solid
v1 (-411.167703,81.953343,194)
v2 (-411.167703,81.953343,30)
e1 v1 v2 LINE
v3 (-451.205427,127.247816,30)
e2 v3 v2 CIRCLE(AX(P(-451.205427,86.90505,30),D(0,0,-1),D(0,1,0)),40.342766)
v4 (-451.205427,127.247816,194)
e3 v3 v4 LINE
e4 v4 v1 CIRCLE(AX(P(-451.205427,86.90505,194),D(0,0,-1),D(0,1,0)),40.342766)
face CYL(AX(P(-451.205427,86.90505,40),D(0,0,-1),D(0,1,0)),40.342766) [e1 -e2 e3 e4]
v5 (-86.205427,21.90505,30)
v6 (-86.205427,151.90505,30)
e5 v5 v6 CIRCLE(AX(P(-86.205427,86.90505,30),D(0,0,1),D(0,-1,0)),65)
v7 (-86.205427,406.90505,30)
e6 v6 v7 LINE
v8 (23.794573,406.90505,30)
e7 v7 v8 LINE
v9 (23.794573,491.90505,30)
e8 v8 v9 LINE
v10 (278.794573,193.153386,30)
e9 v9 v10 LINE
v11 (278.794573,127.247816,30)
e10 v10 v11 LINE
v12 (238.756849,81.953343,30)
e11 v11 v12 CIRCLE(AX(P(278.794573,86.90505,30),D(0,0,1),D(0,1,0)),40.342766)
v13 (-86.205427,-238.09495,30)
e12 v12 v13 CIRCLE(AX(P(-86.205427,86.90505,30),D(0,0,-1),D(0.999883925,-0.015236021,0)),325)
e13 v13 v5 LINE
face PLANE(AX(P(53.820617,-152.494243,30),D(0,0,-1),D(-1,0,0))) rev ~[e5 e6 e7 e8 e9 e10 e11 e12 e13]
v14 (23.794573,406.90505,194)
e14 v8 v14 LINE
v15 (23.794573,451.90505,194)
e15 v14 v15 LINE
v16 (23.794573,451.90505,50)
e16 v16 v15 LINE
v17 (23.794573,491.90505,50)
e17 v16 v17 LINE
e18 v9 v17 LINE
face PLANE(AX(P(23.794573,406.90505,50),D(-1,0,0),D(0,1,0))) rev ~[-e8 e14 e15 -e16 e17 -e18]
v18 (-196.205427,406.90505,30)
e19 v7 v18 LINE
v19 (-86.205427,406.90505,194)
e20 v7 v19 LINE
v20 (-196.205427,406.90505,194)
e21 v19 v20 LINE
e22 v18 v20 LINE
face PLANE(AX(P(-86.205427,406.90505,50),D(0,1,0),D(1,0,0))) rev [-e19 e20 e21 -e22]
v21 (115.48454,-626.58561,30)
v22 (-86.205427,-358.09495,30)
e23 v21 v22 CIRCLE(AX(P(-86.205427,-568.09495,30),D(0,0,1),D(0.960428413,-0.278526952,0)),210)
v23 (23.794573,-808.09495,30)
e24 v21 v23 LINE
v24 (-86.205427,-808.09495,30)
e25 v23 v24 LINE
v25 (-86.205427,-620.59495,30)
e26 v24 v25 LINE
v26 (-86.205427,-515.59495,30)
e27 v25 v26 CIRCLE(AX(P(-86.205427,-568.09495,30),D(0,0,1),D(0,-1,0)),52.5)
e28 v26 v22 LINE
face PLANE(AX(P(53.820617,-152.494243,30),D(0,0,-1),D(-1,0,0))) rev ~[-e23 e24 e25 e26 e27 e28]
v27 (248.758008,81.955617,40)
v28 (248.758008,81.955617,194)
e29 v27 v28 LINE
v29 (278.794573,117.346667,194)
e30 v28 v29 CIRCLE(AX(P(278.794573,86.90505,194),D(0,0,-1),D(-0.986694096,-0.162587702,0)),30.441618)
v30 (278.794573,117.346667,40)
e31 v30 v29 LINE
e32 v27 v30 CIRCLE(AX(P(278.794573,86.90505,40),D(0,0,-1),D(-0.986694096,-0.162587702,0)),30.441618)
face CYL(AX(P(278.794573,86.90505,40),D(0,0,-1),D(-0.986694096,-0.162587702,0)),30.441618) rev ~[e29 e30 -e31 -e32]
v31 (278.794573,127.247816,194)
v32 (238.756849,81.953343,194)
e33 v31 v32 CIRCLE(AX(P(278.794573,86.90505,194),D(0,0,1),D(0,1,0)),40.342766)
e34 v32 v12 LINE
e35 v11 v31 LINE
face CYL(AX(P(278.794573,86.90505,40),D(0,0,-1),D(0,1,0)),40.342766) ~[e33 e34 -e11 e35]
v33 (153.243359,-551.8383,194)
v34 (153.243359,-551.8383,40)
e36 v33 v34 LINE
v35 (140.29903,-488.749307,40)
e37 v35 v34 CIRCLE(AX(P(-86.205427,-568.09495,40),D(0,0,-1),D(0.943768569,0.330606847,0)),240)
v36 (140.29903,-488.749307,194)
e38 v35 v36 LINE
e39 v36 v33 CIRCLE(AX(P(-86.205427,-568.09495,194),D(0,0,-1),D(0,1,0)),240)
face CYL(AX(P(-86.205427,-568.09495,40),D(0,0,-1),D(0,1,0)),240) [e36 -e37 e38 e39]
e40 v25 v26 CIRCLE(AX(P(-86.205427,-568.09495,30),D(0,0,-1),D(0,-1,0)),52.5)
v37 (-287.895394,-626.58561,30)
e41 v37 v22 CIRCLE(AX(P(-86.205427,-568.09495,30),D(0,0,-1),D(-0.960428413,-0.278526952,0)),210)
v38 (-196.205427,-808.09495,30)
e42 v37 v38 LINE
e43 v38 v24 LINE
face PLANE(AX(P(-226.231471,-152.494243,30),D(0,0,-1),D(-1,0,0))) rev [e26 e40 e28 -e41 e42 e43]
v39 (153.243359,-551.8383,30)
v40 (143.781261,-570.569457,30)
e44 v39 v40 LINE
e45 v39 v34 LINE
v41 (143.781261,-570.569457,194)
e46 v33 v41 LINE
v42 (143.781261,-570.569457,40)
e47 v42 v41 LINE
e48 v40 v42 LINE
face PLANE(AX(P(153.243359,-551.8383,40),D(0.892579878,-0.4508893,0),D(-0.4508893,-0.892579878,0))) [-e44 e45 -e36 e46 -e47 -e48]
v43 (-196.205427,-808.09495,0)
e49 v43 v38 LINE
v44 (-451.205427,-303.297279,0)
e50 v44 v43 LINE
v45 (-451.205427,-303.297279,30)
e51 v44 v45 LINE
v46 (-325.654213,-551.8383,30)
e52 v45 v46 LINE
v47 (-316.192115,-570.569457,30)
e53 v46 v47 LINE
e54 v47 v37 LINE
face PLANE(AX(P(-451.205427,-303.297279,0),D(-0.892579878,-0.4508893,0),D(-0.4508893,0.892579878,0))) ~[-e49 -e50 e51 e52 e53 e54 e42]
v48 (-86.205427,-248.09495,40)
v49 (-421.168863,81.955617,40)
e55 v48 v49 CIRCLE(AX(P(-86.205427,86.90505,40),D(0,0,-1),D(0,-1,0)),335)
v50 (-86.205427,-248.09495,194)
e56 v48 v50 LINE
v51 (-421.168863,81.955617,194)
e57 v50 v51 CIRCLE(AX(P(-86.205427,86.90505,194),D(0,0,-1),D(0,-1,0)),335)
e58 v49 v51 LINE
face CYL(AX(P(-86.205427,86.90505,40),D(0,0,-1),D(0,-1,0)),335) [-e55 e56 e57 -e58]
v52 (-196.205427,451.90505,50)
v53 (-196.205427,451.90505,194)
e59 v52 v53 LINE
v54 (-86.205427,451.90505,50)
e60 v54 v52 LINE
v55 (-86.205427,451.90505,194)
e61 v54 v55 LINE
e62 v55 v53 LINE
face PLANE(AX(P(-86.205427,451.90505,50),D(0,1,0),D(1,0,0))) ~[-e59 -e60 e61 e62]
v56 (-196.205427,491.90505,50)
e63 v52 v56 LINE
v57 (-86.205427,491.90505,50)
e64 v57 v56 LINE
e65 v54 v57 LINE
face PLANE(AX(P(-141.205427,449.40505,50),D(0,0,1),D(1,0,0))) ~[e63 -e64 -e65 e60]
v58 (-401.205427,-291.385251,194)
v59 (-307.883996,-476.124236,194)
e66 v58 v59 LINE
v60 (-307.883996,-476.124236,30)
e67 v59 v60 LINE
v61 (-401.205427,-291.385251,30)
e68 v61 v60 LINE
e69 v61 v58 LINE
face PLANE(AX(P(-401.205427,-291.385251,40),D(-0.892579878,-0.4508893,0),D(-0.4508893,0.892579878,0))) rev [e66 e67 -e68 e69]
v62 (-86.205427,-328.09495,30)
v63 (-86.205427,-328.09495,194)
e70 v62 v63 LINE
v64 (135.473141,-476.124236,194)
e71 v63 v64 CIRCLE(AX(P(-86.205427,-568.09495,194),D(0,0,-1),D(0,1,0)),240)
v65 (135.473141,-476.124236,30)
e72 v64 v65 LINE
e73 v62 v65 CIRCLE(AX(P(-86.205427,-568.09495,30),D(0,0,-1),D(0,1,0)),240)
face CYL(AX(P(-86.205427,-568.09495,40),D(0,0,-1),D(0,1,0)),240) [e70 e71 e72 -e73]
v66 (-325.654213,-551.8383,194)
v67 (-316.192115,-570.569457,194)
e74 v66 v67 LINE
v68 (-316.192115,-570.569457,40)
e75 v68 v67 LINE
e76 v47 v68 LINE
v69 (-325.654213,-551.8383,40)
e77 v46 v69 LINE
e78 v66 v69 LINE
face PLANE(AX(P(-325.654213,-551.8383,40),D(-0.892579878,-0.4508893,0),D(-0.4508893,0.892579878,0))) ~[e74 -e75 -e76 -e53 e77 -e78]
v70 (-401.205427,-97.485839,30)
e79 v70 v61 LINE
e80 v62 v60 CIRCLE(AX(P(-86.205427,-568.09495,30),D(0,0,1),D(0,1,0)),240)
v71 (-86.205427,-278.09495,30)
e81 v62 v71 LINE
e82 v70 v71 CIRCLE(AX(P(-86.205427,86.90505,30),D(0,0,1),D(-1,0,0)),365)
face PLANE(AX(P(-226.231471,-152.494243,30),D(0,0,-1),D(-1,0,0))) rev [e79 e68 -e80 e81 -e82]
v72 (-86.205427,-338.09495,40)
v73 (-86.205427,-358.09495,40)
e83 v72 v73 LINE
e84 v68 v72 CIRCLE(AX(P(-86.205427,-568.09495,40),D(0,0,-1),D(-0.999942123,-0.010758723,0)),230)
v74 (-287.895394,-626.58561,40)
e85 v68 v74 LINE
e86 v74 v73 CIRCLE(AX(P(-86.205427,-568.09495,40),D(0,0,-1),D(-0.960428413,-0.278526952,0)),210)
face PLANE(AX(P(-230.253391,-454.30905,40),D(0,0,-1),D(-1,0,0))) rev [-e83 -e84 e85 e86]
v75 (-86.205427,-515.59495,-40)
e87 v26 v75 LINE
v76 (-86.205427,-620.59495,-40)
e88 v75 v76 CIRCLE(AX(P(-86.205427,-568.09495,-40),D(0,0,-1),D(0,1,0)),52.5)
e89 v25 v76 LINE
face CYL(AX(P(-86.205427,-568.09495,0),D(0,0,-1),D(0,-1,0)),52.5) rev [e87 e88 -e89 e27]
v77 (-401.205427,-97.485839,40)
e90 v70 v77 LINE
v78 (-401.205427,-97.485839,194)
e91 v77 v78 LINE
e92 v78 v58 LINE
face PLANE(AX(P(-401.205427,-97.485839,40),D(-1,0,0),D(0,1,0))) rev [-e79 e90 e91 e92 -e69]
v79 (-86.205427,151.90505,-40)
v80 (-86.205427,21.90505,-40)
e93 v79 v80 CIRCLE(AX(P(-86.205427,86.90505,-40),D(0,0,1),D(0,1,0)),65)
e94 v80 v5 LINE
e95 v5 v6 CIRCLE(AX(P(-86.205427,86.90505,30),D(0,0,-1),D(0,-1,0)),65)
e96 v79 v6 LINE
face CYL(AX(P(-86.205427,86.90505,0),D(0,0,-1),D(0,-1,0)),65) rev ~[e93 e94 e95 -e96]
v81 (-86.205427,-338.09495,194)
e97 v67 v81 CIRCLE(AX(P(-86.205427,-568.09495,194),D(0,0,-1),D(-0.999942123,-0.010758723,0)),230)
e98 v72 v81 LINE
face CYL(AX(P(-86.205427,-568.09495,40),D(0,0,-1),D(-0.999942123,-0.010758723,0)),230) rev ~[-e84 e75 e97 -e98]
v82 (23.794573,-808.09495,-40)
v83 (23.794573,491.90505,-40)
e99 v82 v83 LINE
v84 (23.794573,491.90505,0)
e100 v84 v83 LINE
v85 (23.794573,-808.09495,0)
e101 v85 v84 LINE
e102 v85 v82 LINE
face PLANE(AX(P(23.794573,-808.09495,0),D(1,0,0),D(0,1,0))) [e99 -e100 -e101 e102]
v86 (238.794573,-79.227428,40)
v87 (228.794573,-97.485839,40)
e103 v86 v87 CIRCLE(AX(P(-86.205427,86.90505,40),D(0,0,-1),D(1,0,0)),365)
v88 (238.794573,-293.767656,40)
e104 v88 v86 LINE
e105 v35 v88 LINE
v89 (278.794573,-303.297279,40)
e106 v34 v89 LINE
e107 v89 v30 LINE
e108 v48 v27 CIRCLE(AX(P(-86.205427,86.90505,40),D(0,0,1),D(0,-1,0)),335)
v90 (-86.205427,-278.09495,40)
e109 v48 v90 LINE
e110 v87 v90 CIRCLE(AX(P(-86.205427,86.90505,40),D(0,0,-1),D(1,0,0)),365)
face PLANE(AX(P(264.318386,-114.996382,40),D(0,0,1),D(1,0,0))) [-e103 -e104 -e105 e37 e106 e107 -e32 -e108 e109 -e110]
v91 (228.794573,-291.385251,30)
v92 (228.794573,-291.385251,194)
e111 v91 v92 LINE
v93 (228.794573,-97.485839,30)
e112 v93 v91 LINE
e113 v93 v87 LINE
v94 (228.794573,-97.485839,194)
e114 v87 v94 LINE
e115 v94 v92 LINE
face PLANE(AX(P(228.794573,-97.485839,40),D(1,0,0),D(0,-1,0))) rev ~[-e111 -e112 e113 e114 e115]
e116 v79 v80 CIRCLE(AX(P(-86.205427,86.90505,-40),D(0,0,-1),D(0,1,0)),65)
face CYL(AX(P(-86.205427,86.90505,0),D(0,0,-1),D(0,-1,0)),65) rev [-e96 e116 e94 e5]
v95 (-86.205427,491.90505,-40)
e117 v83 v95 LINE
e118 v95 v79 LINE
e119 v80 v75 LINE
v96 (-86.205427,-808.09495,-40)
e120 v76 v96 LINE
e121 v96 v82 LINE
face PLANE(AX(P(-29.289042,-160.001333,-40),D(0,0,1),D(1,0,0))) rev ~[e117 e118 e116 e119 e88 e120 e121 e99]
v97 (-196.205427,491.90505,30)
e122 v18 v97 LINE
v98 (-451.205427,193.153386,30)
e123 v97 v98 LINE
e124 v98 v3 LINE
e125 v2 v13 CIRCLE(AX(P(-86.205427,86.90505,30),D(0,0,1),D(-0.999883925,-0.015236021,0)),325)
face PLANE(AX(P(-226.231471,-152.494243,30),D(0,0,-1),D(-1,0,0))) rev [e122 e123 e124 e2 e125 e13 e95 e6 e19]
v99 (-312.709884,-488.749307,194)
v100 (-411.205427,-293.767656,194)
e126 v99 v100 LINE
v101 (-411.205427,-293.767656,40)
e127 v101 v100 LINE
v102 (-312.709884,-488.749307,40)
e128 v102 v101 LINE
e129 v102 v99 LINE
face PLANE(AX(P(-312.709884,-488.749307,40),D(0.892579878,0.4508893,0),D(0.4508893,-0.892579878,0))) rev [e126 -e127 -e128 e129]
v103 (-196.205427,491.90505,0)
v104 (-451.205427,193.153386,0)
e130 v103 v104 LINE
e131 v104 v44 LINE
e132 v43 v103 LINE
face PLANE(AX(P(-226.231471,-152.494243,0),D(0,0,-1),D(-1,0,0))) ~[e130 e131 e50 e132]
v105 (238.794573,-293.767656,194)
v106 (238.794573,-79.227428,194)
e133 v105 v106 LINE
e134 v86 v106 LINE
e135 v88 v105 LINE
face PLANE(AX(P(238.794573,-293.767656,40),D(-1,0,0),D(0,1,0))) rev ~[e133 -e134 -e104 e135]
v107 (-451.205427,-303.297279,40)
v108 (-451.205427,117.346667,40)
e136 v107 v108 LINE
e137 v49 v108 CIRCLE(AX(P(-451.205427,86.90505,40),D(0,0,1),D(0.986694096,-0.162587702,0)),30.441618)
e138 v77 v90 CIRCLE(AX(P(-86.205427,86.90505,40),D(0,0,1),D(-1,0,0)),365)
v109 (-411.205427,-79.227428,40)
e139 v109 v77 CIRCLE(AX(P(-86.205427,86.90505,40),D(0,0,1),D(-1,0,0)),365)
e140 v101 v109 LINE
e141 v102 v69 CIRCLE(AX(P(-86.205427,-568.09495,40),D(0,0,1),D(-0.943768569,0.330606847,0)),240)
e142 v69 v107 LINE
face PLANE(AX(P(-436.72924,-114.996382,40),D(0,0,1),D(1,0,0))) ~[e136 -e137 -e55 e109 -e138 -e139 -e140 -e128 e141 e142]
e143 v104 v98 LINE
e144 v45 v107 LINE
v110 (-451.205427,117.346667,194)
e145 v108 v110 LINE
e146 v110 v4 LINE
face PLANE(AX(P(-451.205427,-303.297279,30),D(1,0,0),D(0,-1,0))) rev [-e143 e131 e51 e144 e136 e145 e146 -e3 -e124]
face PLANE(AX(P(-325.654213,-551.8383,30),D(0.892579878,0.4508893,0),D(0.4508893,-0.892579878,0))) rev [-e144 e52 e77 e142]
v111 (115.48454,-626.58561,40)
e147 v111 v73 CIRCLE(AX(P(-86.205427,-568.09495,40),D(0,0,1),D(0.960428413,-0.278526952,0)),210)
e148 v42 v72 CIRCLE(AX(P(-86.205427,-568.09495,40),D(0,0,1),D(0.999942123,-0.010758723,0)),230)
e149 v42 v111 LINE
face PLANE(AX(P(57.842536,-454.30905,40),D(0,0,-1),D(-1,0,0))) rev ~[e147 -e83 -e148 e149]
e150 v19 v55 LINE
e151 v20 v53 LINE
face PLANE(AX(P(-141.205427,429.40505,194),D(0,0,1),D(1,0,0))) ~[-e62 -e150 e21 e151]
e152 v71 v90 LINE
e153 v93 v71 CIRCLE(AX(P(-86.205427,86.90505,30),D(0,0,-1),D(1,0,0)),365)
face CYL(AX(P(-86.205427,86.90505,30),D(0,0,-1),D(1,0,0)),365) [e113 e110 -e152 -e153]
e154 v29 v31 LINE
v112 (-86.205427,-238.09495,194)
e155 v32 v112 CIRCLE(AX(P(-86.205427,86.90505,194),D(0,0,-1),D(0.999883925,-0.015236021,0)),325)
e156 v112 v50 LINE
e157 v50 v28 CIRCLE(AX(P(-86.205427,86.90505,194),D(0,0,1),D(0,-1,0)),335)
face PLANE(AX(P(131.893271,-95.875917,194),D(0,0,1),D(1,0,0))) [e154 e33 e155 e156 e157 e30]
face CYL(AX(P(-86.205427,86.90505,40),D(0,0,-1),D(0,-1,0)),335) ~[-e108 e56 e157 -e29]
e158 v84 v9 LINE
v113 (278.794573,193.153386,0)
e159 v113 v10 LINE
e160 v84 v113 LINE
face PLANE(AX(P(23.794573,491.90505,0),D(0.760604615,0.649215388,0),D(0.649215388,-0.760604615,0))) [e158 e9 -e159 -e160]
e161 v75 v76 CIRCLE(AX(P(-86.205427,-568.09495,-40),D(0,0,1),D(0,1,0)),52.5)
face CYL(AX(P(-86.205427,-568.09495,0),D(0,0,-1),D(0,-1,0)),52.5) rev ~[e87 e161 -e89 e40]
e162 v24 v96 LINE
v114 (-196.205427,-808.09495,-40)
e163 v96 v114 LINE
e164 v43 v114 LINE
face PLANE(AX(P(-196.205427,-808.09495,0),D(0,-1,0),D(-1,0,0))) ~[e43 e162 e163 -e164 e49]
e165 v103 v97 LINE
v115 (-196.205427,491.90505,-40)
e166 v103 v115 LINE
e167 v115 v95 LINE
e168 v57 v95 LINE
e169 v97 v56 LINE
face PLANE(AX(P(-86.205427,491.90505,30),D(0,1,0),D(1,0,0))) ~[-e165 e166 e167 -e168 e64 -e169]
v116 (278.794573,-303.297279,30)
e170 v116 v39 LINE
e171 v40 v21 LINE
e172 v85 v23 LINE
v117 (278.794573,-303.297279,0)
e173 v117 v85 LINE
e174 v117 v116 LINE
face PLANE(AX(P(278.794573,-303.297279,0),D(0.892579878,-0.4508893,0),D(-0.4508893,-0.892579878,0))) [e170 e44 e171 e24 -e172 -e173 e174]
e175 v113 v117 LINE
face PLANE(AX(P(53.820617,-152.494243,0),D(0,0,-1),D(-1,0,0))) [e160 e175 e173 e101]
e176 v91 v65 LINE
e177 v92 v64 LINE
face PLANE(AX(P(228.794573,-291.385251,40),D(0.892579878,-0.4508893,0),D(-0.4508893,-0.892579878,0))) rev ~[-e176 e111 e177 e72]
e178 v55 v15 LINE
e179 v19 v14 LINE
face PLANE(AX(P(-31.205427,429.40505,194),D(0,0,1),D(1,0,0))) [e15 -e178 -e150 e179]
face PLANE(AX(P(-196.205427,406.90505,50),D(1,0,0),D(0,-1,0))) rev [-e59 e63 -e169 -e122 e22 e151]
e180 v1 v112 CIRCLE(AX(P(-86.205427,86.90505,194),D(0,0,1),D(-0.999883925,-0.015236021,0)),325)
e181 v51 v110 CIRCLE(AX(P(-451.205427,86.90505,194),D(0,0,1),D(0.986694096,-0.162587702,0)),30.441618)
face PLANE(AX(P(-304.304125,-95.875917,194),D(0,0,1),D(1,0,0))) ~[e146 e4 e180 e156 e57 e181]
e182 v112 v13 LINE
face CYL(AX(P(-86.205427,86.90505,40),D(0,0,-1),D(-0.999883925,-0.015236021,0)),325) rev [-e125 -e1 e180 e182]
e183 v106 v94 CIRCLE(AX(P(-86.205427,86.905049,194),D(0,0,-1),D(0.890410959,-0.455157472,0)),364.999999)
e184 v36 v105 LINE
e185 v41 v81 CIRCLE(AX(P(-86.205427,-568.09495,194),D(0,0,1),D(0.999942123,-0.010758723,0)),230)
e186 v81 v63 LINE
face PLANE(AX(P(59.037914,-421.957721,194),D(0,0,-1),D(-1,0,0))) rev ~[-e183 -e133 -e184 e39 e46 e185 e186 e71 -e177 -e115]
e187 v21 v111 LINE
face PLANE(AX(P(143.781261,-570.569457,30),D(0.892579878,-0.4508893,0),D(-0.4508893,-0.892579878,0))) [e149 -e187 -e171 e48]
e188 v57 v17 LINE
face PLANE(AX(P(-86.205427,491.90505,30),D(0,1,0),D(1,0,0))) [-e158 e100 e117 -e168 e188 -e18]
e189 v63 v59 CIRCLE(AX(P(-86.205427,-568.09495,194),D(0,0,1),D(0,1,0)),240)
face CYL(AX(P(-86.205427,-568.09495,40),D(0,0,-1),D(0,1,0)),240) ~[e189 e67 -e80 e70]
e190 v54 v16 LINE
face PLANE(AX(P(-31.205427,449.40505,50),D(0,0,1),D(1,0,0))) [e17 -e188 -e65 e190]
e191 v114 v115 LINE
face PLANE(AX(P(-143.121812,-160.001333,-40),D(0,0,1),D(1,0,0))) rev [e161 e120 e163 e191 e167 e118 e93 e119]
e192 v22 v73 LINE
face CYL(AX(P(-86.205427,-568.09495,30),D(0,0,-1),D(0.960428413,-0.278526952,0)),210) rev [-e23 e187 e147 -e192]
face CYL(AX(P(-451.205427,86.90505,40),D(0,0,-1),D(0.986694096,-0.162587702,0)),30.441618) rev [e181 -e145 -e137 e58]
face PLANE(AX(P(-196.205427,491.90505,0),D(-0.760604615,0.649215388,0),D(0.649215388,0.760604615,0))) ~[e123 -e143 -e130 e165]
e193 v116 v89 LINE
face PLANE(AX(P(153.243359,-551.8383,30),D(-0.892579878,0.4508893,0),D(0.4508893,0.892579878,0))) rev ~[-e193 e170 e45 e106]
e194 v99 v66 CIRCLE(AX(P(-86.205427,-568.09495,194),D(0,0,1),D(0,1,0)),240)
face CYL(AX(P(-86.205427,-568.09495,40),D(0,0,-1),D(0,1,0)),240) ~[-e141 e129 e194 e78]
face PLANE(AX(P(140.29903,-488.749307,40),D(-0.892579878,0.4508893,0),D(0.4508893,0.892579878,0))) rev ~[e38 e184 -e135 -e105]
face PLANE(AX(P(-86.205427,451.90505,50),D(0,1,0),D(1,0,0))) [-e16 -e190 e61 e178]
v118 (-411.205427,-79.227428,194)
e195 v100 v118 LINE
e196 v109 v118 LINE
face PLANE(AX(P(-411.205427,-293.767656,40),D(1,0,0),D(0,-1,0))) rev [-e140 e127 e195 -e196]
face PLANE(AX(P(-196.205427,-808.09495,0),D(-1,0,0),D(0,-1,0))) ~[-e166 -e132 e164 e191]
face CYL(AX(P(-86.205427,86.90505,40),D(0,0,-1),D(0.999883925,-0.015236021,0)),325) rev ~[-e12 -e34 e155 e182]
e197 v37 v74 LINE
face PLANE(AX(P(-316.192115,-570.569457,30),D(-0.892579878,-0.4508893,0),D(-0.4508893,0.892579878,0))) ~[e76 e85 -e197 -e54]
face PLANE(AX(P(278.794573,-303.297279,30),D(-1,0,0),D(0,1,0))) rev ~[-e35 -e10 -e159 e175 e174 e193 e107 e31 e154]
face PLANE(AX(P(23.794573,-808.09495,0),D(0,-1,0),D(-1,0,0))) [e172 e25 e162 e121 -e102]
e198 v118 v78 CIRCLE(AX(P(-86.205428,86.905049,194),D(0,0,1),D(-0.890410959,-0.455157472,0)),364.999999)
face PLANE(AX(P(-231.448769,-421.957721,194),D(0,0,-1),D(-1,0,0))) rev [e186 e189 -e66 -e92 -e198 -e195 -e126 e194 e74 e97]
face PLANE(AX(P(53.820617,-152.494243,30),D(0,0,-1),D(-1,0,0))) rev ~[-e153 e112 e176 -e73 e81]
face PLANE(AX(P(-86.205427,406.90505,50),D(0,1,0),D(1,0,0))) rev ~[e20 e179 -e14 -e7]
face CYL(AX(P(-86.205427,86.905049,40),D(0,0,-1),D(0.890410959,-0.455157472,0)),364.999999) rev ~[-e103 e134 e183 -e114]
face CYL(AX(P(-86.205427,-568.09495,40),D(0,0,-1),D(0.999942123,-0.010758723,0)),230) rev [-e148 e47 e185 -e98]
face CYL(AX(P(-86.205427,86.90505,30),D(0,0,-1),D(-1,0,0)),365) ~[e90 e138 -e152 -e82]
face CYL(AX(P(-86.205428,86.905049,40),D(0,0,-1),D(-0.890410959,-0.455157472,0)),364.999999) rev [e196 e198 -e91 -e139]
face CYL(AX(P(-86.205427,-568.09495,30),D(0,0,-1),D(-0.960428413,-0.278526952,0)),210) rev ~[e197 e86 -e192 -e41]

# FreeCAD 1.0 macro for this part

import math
import FreeCAD as App
import Part
import Sketcher

doc = App.newDocument("Part")
body = doc.addObject("PartDesign::Body", "Body")

# Sketch on XY plane
sketch1 = doc.addObject("Sketcher::SketchObject", "Sketch")
body.addObject(sketch1)
sketch1.AttachmentSupport = (doc.XY_Plane, [""])
sketch1.MapMode = "FlatFace"
sketch1.addGeometry([
    Part.LineSegment(App.Vector(24, 492, 0), App.Vector(-86, 492, 0)),  # 0
    Part.LineSegment(App.Vector(-86, 492, 0), App.Vector(-86, 152, 0)),  # 1
    Part.ArcOfCircle(Part.Circle(App.Vector(-86, 87, 0), App.Vector(0, 0, 1), 65), math.radians(-90), math.radians(90)),  # 2
    Part.LineSegment(App.Vector(-86, 22, 0), App.Vector(-86, -516, 0)),  # 3
    Part.ArcOfCircle(Part.Circle(App.Vector(-86, -568, 0), App.Vector(0, 0, 1), 52), math.radians(-90), math.radians(90)),  # 4
    Part.LineSegment(App.Vector(-86, -621, 0), App.Vector(-86, -808, 0)),  # 5
    Part.LineSegment(App.Vector(-86, -808, 0), App.Vector(24, -808, 0)),  # 6
    Part.LineSegment(App.Vector(24, -808, 0), App.Vector(279, -303, 0)),  # 7
    Part.LineSegment(App.Vector(279, -303, 0), App.Vector(279, 193, 0)),  # 8
    Part.LineSegment(App.Vector(279, 193, 0), App.Vector(24, 492, 0)),  # 9
], False)
sketch1.addConstraint([
    Sketcher.Constraint("Coincident", 0, 2, 1, 1),
    Sketcher.Constraint("Coincident", 1, 2, 2, 2),
    Sketcher.Constraint("Coincident", 2, 1, 3, 1),
    Sketcher.Constraint("Coincident", 3, 2, 4, 2),
    Sketcher.Constraint("Coincident", 4, 1, 5, 1),
    Sketcher.Constraint("Coincident", 5, 2, 6, 1),
    Sketcher.Constraint("Coincident", 6, 2, 7, 1),
    Sketcher.Constraint("Coincident", 7, 2, 8, 1),
    Sketcher.Constraint("Coincident", 8, 2, 9, 1),
    Sketcher.Constraint("Coincident", 9, 2, 0, 1),
    Sketcher.Constraint("Horizontal", 0),
    Sketcher.Constraint("Vertical", 1),
    Sketcher.Constraint("Vertical", 3),
    Sketcher.Constraint("Vertical", 5),
    Sketcher.Constraint("Horizontal", 6),
    Sketcher.Constraint("Vertical", 8),
    Sketcher.Constraint("Vertical", 2, 3, 4, 3),
    Sketcher.Constraint("Vertical", 4, 3, 0, 2),
    Sketcher.Constraint("Vertical", 1, 2, 2, 1),
    Sketcher.Constraint("Vertical", 3, 2, 4, 1),
    Sketcher.Constraint("Vertical", 6, 2, 9, 2),
    Sketcher.Constraint("Radius", 2, 65.0),
    Sketcher.Constraint("Radius", 4, 52.5),
    Sketcher.Constraint("DistanceX", 0, 2, 0, 1, 110.0),
    Sketcher.Constraint("DistanceY", 1, 2, 1, 1, 340.0),
    Sketcher.Constraint("DistanceY", 3, 2, 3, 1, 537.5),
    Sketcher.Constraint("DistanceY", 5, 2, 5, 1, 187.5),
    Sketcher.Constraint("DistanceX", 3, 2, 7, 2, 365.0),
    Sketcher.Constraint("DistanceY", 8, 1, 8, 2, 496.450665),
    Sketcher.Constraint("DistanceY", -1, 1, 2, 3, 86.90505),
    Sketcher.Constraint("DistanceY", 7, 2, -1, 1, 303.297279),
    Sketcher.Constraint("DistanceX", 2, 3, -1, 1, 86.205427),
])
pad1 = doc.addObject("PartDesign::Pad", "Pad")
body.addObject(pad1)
pad1.Profile = sketch1
pad1.Length = 30
body2 = doc.addObject("PartDesign::Body", "Body001")

# Sketch on XY plane
sketch2 = doc.addObject("Sketcher::SketchObject", "Sketch001")
body2.addObject(sketch2)
sketch2.AttachmentSupport = (doc.getObject("XY_Plane001"), [""])
sketch2.MapMode = "FlatFace"
sketch2.addGeometry([
    Part.LineSegment(App.Vector(-86, 492, 0), App.Vector(24, 492, 0)),  # 0
    Part.LineSegment(App.Vector(24, 492, 0), App.Vector(24, -808, 0)),  # 1
    Part.LineSegment(App.Vector(24, -808, 0), App.Vector(-86, -808, 0)),  # 2
    Part.LineSegment(App.Vector(-86, -808, 0), App.Vector(-86, -621, 0)),  # 3
    Part.ArcOfCircle(Part.Circle(App.Vector(-86, -568, 0), App.Vector(0, 0, 1), 52), math.radians(-90), math.radians(90)),  # 4
    Part.LineSegment(App.Vector(-86, -516, 0), App.Vector(-86, 22, 0)),  # 5
    Part.ArcOfCircle(Part.Circle(App.Vector(-86, 87, 0), App.Vector(0, 0, 1), 65), math.radians(-90), math.radians(90)),  # 6
    Part.LineSegment(App.Vector(-86, 152, 0), App.Vector(-86, 492, 0)),  # 7
], False)
sketch2.addConstraint([
    Sketcher.Constraint("Coincident", 0, 2, 1, 1),
    Sketcher.Constraint("Coincident", 1, 2, 2, 1),
    Sketcher.Constraint("Coincident", 2, 2, 3, 1),
    Sketcher.Constraint("Coincident", 3, 2, 4, 1),
    Sketcher.Constraint("Coincident", 4, 2, 5, 1),
    Sketcher.Constraint("Coincident", 5, 2, 6, 1),
    Sketcher.Constraint("Coincident", 6, 2, 7, 1),
    Sketcher.Constraint("Coincident", 7, 2, 0, 1),
    Sketcher.Constraint("Horizontal", 0),
    Sketcher.Constraint("Vertical", 1),
    Sketcher.Constraint("Horizontal", 2),
    Sketcher.Constraint("Vertical", 3),
    Sketcher.Constraint("Vertical", 5),
    Sketcher.Constraint("Vertical", 7),
    Sketcher.Constraint("Vertical", 4, 3, 6, 3),
    Sketcher.Constraint("Vertical", 6, 3, 2, 2),
    Sketcher.Constraint("Vertical", 3, 2, 4, 2),
    Sketcher.Constraint("Vertical", 5, 2, 6, 2),
    Sketcher.Constraint("Radius", 6, 65.0),
    Sketcher.Constraint("Radius", 4, 52.5),
    Sketcher.Constraint("DistanceX", 0, 1, 0, 2, 110.0),
    Sketcher.Constraint("DistanceY", 1, 2, 1, 1, 1300.0),
    Sketcher.Constraint("DistanceY", 7, 1, 7, 2, 340.0),
    Sketcher.Constraint("DistanceY", 3, 1, 3, 2, 187.5),
    Sketcher.Constraint("DistanceY", 4, 3, -1, 1, 568.09495),
    Sketcher.Constraint("DistanceX", 4, 3, -1, 1, 86.205427),
])
pad2 = doc.addObject("PartDesign::Pad", "Pad001")
body2.addObject(pad2)
pad2.Profile = sketch2
pad2.Length = 40
pad2.Reversed = True
body3 = doc.addObject("PartDesign::Body", "Body002")

# Sketch on XY plane
sketch3 = doc.addObject("Sketcher::SketchObject", "Sketch002")
body3.addObject(sketch3)
sketch3.AttachmentSupport = (doc.getObject("XY_Plane002"), [""])
sketch3.MapMode = "FlatFace"
sketch3.AttachmentOffset = App.Placement(App.Vector(0, 0, 30), App.Rotation())
sketch3.addGeometry([
    Part.LineSegment(App.Vector(279, 87, 0), App.Vector(279, 127, 0)),  # 0
    Part.ArcOfCircle(Part.Circle(App.Vector(279, 87, 0), App.Vector(0, 0, 1), 40), math.radians(90), math.radians(187)),  # 1
    Part.ArcOfCircle(Part.Circle(App.Vector(-86, 87, 0), App.Vector(0, 0, 1), 325), math.radians(-90), math.radians(-1)),  # 2
    Part.LineSegment(App.Vector(-86, -238, 0), App.Vector(-86, -278, 0)),  # 3
    Part.ArcOfCircle(Part.Circle(App.Vector(-86, 87, 0), App.Vector(0, 0, 1), 365), math.radians(-90), math.radians(0)),  # 4
], False)
sketch3.addConstraint([
    Sketcher.Constraint("Coincident", 0, 2, 1, 1),
    Sketcher.Constraint("Coincident", 1, 2, 2, 2),
    Sketcher.Constraint("Coincident", 2, 1, 3, 1),
    Sketcher.Constraint("Coincident", 3, 2, 4, 1),
    Sketcher.Constraint("Tangent", 4, 2, 0, 1),
    Sketcher.Constraint("Vertical", 0),
    Sketcher.Constraint("Vertical", 3),
    Sketcher.Constraint("Coincident", 4, 3, 2, 3),
    Sketcher.Constraint("Coincident", 4, 2, 1, 3),
    Sketcher.Constraint("Vertical", 4, 3, 2, 1),
    Sketcher.Constraint("Radius", 2, 325.0),
    Sketcher.Constraint("Radius", 4, 365.0),
    Sketcher.Constraint("Radius", 1, 40.342766),
    Sketcher.Constraint("DistanceY", -1, 1, 1, 3, 86.90505),
    Sketcher.Constraint("DistanceX", -1, 1, 1, 2, 238.756849),
])
pad3 = doc.addObject("PartDesign::Pad", "Pad002")
body3.addObject(pad3)
pad3.Profile = sketch3
pad3.Length = 10

# Sketch on XY plane
sketch4 = doc.addObject("Sketcher::SketchObject", "Sketch003")
body3.addObject(sketch4)
sketch4.AttachmentSupport = (doc.getObject("XY_Plane002"), [""])
sketch4.MapMode = "FlatFace"
sketch4.AttachmentOffset = App.Placement(App.Vector(0, 0, 40), App.Rotation())
sketch4.addGeometry([
    Part.ArcOfCircle(Part.Circle(App.Vector(-86, 87, 0), App.Vector(0, 0, 1), 335), math.radians(-90), math.radians(-1)),  # 0
    Part.ArcOfCircle(Part.Circle(App.Vector(279, 87, 0), App.Vector(0, 0, 1), 30), math.radians(90), math.radians(189)),  # 1
    Part.LineSegment(App.Vector(279, 117, 0), App.Vector(279, 127, 0)),  # 2
    Part.ArcOfCircle(Part.Circle(App.Vector(279, 87, 0), App.Vector(0, 0, 1), 40), math.radians(90), math.radians(187)),  # 3
    Part.ArcOfCircle(Part.Circle(App.Vector(-86, 87, 0), App.Vector(0, 0, 1), 325), math.radians(-90), math.radians(-1)),  # 4
    Part.LineSegment(App.Vector(-86, -238, 0), App.Vector(-86, -248, 0)),  # 5
], False)
sketch4.addConstraint([
    Sketcher.Constraint("Coincident", 0, 2, 1, 2),
    Sketcher.Constraint("Coincident", 1, 1, 2, 1),
    Sketcher.Constraint("Coincident", 2, 2, 3, 1),
    Sketcher.Constraint("Coincident", 3, 2, 4, 2),
    Sketcher.Constraint("Coincident", 4, 1, 5, 1),
    Sketcher.Constraint("Coincident", 5, 2, 0, 1),
    Sketcher.Constraint("Vertical", 2),
    Sketcher.Constraint("Vertical", 5),
    Sketcher.Constraint("Coincident", 3, 3, 1, 3),
    Sketcher.Constraint("Coincident", 4, 3, 0, 3),
    Sketcher.Constraint("Horizontal", 0, 3, 1, 3),
    Sketcher.Constraint("Vertical", 3, 3, 1, 1),
    Sketcher.Constraint("Vertical", 0, 3, 4, 1),
    Sketcher.Constraint("Radius", 0, 335.0),
    Sketcher.Constraint("Radius", 4, 325.0),
    Sketcher.Constraint("DistanceX", 0, 3, 1, 3, 365.0),
    Sketcher.Constraint("Radius", 1, 30.441618),
    Sketcher.Constraint("Radius", 3, 40.342766),
    Sketcher.Constraint("DistanceY", -1, 1, 0, 3, 86.90505),
    Sketcher.Constraint("DistanceX", -1, 1, 0, 2, 248.758008),
])
pad4 = doc.addObject("PartDesign::Pad", "Pad003")
body3.addObject(pad4)
pad4.Profile = sketch4
pad4.Length = 154
body4 = doc.addObject("PartDesign::Body", "Body003")

# Sketch on XY plane
sketch5 = doc.addObject("Sketcher::SketchObject", "Sketch004")
body4.addObject(sketch5)
sketch5.AttachmentSupport = (doc.getObject("XY_Plane003"), [""])
sketch5.MapMode = "FlatFace"
sketch5.AttachmentOffset = App.Placement(App.Vector(0, 0, 30), App.Rotation())
sketch5.addGeometry([
    Part.LineSegment(App.Vector(115, -627, 0), App.Vector(144, -571, 0)),  # 0
    Part.LineSegment(App.Vector(144, -571, 0), App.Vector(153, -552, 0)),  # 1
    Part.ArcOfCircle(Part.Circle(App.Vector(-86, -568, 0), App.Vector(0, 0, 1), 240), math.radians(4), math.radians(90)),  # 2
    Part.LineSegment(App.Vector(-86, -328, 0), App.Vector(-86, -358, 0)),  # 3
    Part.ArcOfCircle(Part.Circle(App.Vector(-86, -568, 0), App.Vector(0, 0, 1), 210), math.radians(-16), math.radians(90)),  # 4
], False)
sketch5.addConstraint([
    Sketcher.Constraint("Coincident", 0, 2, 1, 1),
    Sketcher.Constraint("Coincident", 1, 2, 2, 1),
    Sketcher.Constraint("Coincident", 2, 2, 3, 1),
    Sketcher.Constraint("Coincident", 3, 2, 4, 2),
    Sketcher.Constraint("Coincident", 4, 1, 0, 1),
    Sketcher.Constraint("Vertical", 3),
    Sketcher.Constraint("Coincident", 4, 3, 2, 3),
    Sketcher.Constraint("Parallel", 0, 1),
    Sketcher.Constraint("Vertical", 4, 3, 2, 2),
    Sketcher.Constraint("Radius", 2, 240.0),
    Sketcher.Constraint("Radius", 4, 210.0),
    Sketcher.Constraint("DistanceY", 1, 2, -1, 1, 551.8383),
    Sketcher.Constraint("DistanceX", 0, 2, 1, 2, 9.462098),
    Sketcher.Constraint("Distance", 0, 62.75758),
    Sketcher.Constraint("DistanceY", 2, 3, -1, 1, 568.09495),
    Sketcher.Constraint("DistanceX", -1, 1, 0, 2, 143.781261),
])
pad5 = doc.addObject("PartDesign::Pad", "Pad004")
body4.addObject(pad5)
pad5.Profile = sketch5
pad5.Length = 10

# Sketch on XY plane
sketch6 = doc.addObject("Sketcher::SketchObject", "Sketch005")
body4.addObject(sketch6)
sketch6.AttachmentSupport = (doc.getObject("XY_Plane003"), [""])
sketch6.MapMode = "FlatFace"
sketch6.AttachmentOffset = App.Placement(App.Vector(0, 0, 40), App.Rotation())
sketch6.addGeometry([
    Part.ArcOfCircle(Part.Circle(App.Vector(-86, -568, 0), App.Vector(0, 0, 1), 240), math.radians(4), math.radians(90)),
    Part.LineSegment(App.Vector(-86, -328, 0), App.Vector(-86, -338, 0)),
    Part.ArcOfCircle(Part.Circle(App.Vector(-86, -568, 0), App.Vector(0, 0, 1), 230), math.radians(-1), math.radians(90)),
    Part.LineSegment(App.Vector(144, -571, 0), App.Vector(153, -552, 0)),
], False)
sketch6.addConstraint([
    Sketcher.Constraint("Coincident", 0, 2, 1, 1),
    Sketcher.Constraint("Coincident", 1, 2, 2, 2),
    Sketcher.Constraint("Coincident", 2, 1, 3, 1),
    Sketcher.Constraint("Coincident", 3, 2, 0, 1),
    Sketcher.Constraint("Vertical", 1),
    Sketcher.Constraint("Coincident", 2, 3, 0, 3),
    Sketcher.Constraint("Vertical", 2, 3, 0, 2),
    Sketcher.Constraint("Radius", 0, 240.0),
    Sketcher.Constraint("Radius", 2, 230.0),
    Sketcher.Constraint("DistanceY", 3, 2, -1, 1, 551.8383),
    Sketcher.Constraint("DistanceX", 2, 1, 3, 2, 9.462098),
    Sketcher.Constraint("DistanceY", 0, 3, -1, 1, 568.09495),
    Sketcher.Constraint("DistanceX", -1, 1, 2, 1, 143.781261),
])
pad6 = doc.addObject("PartDesign::Pad", "Pad005")
body4.addObject(pad6)
pad6.Profile = sketch6
pad6.Length = 154
body5 = doc.addObject("PartDesign::Body", "Body004")

# Sketch on XY plane
sketch7 = doc.addObject("Sketcher::SketchObject", "Sketch006")
body5.addObject(sketch7)
sketch7.AttachmentSupport = (doc.getObject("XY_Plane004"), [""])
sketch7.MapMode = "FlatFace"
sketch7.AttachmentOffset = App.Placement(App.Vector(0, 0, 30), App.Rotation())
sketch7.addGeometry([
    Part.LineSegment(App.Vector(279, -303, 0), App.Vector(279, 87, 0)),  # 0
    Part.ArcOfCircle(Part.Circle(App.Vector(-86, 87, 0), App.Vector(0, 0, 1), 365), math.radians(-27), math.radians(0)),  # 1
    Part.ArcOfCircle(Part.Circle(App.Vector(-86, 87, 0), App.Vector(0, 0, 1), 365), math.radians(-30.34), math.radians(-27.08)),  # 2
    Part.LineSegment(App.Vector(229, -97, 0), App.Vector(229, -291, 0)),  # 3
    Part.LineSegment(App.Vector(229, -291, 0), App.Vector(135, -476, 0)),  # 4
    Part.ArcOfCircle(Part.Circle(App.Vector(-86, -568, 0), App.Vector(0, 0, 1), 240), math.radians(19.31), math.radians(22.53)),  # 5
    Part.ArcOfCircle(Part.Circle(App.Vector(-86, -568, 0), App.Vector(0, 0, 1), 240), math.radians(3.88), math.radians(19.31)),  # 6
    Part.LineSegment(App.Vector(153, -552, 0), App.Vector(279, -303, 0)),  # 7
], False)
sketch7.addConstraint([
    Sketcher.Constraint("Tangent", 0, 2, 1, 2),
    Sketcher.Constraint("Tangent", 1, 1, 2, 2),
    Sketcher.Constraint("Coincident", 2, 1, 3, 1),
    Sketcher.Constraint("Coincident", 3, 2, 4, 1),
    Sketcher.Constraint("Coincident", 4, 2, 5, 2),
    Sketcher.Constraint("Tangent", 5, 1, 6, 2),
    Sketcher.Constraint("Coincident", 6, 1, 7, 1),
    Sketcher.Constraint("Coincident", 7, 2, 0, 1),
    Sketcher.Constraint("Vertical", 0),
    Sketcher.Constraint("Vertical", 3),
    Sketcher.Constraint("Equal", 1, 2),
    Sketcher.Constraint("Equal", 5, 6),
    Sketcher.Constraint("Parallel", 4, 7),
    Sketcher.Constraint("Vertical", 2, 3, 5, 3),
    Sketcher.Constraint("Radius", 1, 365.0),
    Sketcher.Constraint("Radius", 5, 240.0),
    Sketcher.Constraint("DistanceY", 5, 3, 2, 3, 655.0),
    Sketcher.Constraint("DistanceX", 1, 1, 0, 2, 40.0),
    Sketcher.Constraint("DistanceX", 2, 1, 0, 2, 50.0),
    Sketcher.Constraint("DistanceY", 0, 1, 0, 2, 390.202329),
    Sketcher.Constraint("DistanceY", 3, 2, 3, 1, 193.899411),
    Sketcher.Constraint("DistanceY", 6, 1, -1, 1, 551.8383),
    Sketcher.Constraint("DistanceY", -1, 1, 1, 3, 86.90505),
    Sketcher.Constraint("DistanceX", -1, 1, 4, 2, 135.473141),
    Sketcher.Constraint("DistanceX", -1, 1, 5, 1, 140.29903),
])
pad7 = doc.addObject("PartDesign::Pad", "Pad006")
body5.addObject(pad7)
pad7.Profile = sketch7
pad7.Length = 10

# Sketch on XY plane
sketch8 = doc.addObject("Sketcher::SketchObject", "Sketch007")
body5.addObject(sketch8)
sketch8.AttachmentSupport = (doc.getObject("XY_Plane004"), [""])
sketch8.MapMode = "FlatFace"
sketch8.AttachmentOffset = App.Placement(App.Vector(0, 0, 40), App.Rotation())
sketch8.addGeometry([
    Part.LineSegment(App.Vector(239, -294, 0), App.Vector(239, -79, 0)),  # 0
    Part.ArcOfCircle(Part.Circle(App.Vector(-86, 87, 0), App.Vector(0, 0, 1), 365), math.radians(-30.34), math.radians(-27.08)),  # 1
    Part.LineSegment(App.Vector(229, -97, 0), App.Vector(229, -291, 0)),  # 2
    Part.LineSegment(App.Vector(229, -291, 0), App.Vector(135, -476, 0)),  # 3
    Part.ArcOfCircle(Part.Circle(App.Vector(-86, -568, 0), App.Vector(0, 0, 1), 240), math.radians(19.31), math.radians(22.53)),  # 4
    Part.LineSegment(App.Vector(140, -489, 0), App.Vector(239, -294, 0)),  # 5
], False)
sketch8.addConstraint([
    Sketcher.Constraint("Coincident", 0, 2, 1, 2),
    Sketcher.Constraint("Coincident", 1, 1, 2, 1),
    Sketcher.Constraint("Coincident", 2, 2, 3, 1),
    Sketcher.Constraint("Coincident", 3, 2, 4, 2),
    Sketcher.Constraint("Coincident", 4, 1, 5, 1),
    Sketcher.Constraint("Coincident", 5, 2, 0, 1),
    Sketcher.Constraint("Vertical", 0),
    Sketcher.Constraint("Vertical", 2),
    Sketcher.Constraint("Parallel", 3, 5),
    Sketcher.Constraint("Vertical", 1, 3, 4, 3),
    Sketcher.Constraint("Radius", 1, 364.999999),
    Sketcher.Constraint("Radius", 4, 240.0),
    Sketcher.Constraint("DistanceY", 4, 3, 1, 3, 655.0),
    Sketcher.Constraint("DistanceX", 1, 3, 0, 2, 325.0),
    Sketcher.Constraint("DistanceX", 1, 1, 0, 2, 10.0),
    Sketcher.Constraint("DistanceY", 0, 1, 0, 2, 214.540229),
    Sketcher.Constraint("DistanceY", 2, 2, 2, 1, 193.899411),
    Sketcher.Constraint("DistanceY", -1, 1, 1, 3, 86.905049),
    Sketcher.Constraint("DistanceX", -1, 1, 3, 2, 135.473141),
    Sketcher.Constraint("DistanceX", 3, 2, 2, 2, 93.321431),
])
pad8 = doc.addObject("PartDesign::Pad", "Pad007")
body5.addObject(pad8)
pad8.Profile = sketch8
pad8.Length = 154
body6 = doc.addObject("PartDesign::Body", "Body005")

# Sketch on XY plane
sketch9 = doc.addObject("Sketcher::SketchObject", "Sketch008")
body6.addObject(sketch9)
sketch9.AttachmentSupport = (doc.getObject("XY_Plane005"), [""])
sketch9.MapMode = "FlatFace"
sketch9.AttachmentOffset = App.Placement(App.Vector(0, 0, 30), App.Rotation())
sketch9.addGeometry([
    Part.LineSegment(App.Vector(-86, 492, 0), App.Vector(-86, 407, 0)),
    Part.LineSegment(App.Vector(-86, 407, 0), App.Vector(24, 407, 0)),
    Part.LineSegment(App.Vector(24, 407, 0), App.Vector(24, 492, 0)),
    Part.LineSegment(App.Vector(24, 492, 0), App.Vector(-86, 492, 0)),
], False)
sketch9.addConstraint([
    Sketcher.Constraint("Coincident", 0, 2, 1, 1),
    Sketcher.Constraint("Coincident", 1, 2, 2, 1),
    Sketcher.Constraint("Coincident", 2, 2, 3, 1),
    Sketcher.Constraint("Coincident", 3, 2, 0, 1),
    Sketcher.Constraint("Vertical", 0),
    Sketcher.Constraint("Horizontal", 1),
    Sketcher.Constraint("Vertical", 2),
    Sketcher.Constraint("Horizontal", 3),
    Sketcher.Constraint("DistanceX", 1, 1, 1, 2, 110.0),
    Sketcher.Constraint("DistanceY", 0, 2, 0, 1, 85.0),
    Sketcher.Constraint("DistanceY", -1, 1, 0, 2, 406.90505),
    Sketcher.Constraint("DistanceX", 0, 2, -1, 1, 86.205427),
])
pad9 = doc.addObject("PartDesign::Pad", "Pad008")
body6.addObject(pad9)
pad9.Profile = sketch9
pad9.Length = 20

# Sketch on XY plane
sketch10 = doc.addObject("Sketcher::SketchObject", "Sketch009")
body6.addObject(sketch10)
sketch10.AttachmentSupport = (doc.getObject("XY_Plane005"), [""])
sketch10.MapMode = "FlatFace"
sketch10.AttachmentOffset = App.Placement(App.Vector(0, 0, 50), App.Rotation())
sketch10.addGeometry([
    Part.LineSegment(App.Vector(-86, 452, 0), App.Vector(-86, 407, 0)),
    Part.LineSegment(App.Vector(-86, 407, 0), App.Vector(24, 407, 0)),
    Part.LineSegment(App.Vector(24, 407, 0), App.Vector(24, 452, 0)),
    Part.LineSegment(App.Vector(24, 452, 0), App.Vector(-86, 452, 0)),
], False)
sketch10.addConstraint([
    Sketcher.Constraint("Coincident", 0, 2, 1, 1),
    Sketcher.Constraint("Coincident", 1, 2, 2, 1),
    Sketcher.Constraint("Coincident", 2, 2, 3, 1),
    Sketcher.Constraint("Coincident", 3, 2, 0, 1),
    Sketcher.Constraint("Vertical", 0),
    Sketcher.Constraint("Horizontal", 1),
    Sketcher.Constraint("Vertical", 2),
    Sketcher.Constraint("Horizontal", 3),
    Sketcher.Constraint("DistanceX", 1, 1, 1, 2, 110.0),
    Sketcher.Constraint("DistanceY", 0, 2, 0, 1, 45.0),
    Sketcher.Constraint("DistanceY", -1, 1, 0, 2, 406.90505),
    Sketcher.Constraint("DistanceX", 0, 2, -1, 1, 86.205427),
])
pad10 = doc.addObject("PartDesign::Pad", "Pad009")
body6.addObject(pad10)
pad10.Profile = sketch10
pad10.Length = 144
doc.recompute()

boolean = doc.addObject("PartDesign::Boolean", "Boolean")
body2.addObject(boolean)
boolean.Type = "Fuse"
boolean.addObjects([body])
doc.recompute()

boolean2 = doc.addObject("PartDesign::Boolean", "Boolean001")
body2.addObject(boolean2)
boolean2.Type = "Fuse"
boolean2.addObjects([body6])
doc.recompute()

boolean3 = doc.addObject("PartDesign::Boolean", "Boolean002")
body2.addObject(boolean3)
boolean3.Type = "Fuse"
boolean3.addObjects([body3])
doc.recompute()

boolean4 = doc.addObject("PartDesign::Boolean", "Boolean003")
body2.addObject(boolean4)
boolean4.Type = "Fuse"
boolean4.addObjects([body5])
doc.recompute()

boolean5 = doc.addObject("PartDesign::Boolean", "Boolean004")
body2.addObject(boolean5)
boolean5.Type = "Fuse"
boolean5.addObjects([body4])
body7 = doc.addObject("PartDesign::Body", "Body006")
doc.recompute()

body7.BaseFeature = body2
doc.recompute()

mirroring = doc.addObject("Part::Mirroring", "Mirroring")
mirroring.Source = body2
mirroring.Base = App.Vector(-86.205427, 491.90505, -40)
mirroring.Normal = App.Vector(1, 0, 0)
body8 = doc.addObject("PartDesign::Body", "Body007")
body8.BaseFeature = mirroring
boolean6 = doc.addObject("PartDesign::Boolean", "Boolean005")
body7.addObject(boolean6)
boolean6.Type = "Fuse"
boolean6.addObjects([body8])
doc.recompute()
mirroring.Visibility = False

doc.recompute()
